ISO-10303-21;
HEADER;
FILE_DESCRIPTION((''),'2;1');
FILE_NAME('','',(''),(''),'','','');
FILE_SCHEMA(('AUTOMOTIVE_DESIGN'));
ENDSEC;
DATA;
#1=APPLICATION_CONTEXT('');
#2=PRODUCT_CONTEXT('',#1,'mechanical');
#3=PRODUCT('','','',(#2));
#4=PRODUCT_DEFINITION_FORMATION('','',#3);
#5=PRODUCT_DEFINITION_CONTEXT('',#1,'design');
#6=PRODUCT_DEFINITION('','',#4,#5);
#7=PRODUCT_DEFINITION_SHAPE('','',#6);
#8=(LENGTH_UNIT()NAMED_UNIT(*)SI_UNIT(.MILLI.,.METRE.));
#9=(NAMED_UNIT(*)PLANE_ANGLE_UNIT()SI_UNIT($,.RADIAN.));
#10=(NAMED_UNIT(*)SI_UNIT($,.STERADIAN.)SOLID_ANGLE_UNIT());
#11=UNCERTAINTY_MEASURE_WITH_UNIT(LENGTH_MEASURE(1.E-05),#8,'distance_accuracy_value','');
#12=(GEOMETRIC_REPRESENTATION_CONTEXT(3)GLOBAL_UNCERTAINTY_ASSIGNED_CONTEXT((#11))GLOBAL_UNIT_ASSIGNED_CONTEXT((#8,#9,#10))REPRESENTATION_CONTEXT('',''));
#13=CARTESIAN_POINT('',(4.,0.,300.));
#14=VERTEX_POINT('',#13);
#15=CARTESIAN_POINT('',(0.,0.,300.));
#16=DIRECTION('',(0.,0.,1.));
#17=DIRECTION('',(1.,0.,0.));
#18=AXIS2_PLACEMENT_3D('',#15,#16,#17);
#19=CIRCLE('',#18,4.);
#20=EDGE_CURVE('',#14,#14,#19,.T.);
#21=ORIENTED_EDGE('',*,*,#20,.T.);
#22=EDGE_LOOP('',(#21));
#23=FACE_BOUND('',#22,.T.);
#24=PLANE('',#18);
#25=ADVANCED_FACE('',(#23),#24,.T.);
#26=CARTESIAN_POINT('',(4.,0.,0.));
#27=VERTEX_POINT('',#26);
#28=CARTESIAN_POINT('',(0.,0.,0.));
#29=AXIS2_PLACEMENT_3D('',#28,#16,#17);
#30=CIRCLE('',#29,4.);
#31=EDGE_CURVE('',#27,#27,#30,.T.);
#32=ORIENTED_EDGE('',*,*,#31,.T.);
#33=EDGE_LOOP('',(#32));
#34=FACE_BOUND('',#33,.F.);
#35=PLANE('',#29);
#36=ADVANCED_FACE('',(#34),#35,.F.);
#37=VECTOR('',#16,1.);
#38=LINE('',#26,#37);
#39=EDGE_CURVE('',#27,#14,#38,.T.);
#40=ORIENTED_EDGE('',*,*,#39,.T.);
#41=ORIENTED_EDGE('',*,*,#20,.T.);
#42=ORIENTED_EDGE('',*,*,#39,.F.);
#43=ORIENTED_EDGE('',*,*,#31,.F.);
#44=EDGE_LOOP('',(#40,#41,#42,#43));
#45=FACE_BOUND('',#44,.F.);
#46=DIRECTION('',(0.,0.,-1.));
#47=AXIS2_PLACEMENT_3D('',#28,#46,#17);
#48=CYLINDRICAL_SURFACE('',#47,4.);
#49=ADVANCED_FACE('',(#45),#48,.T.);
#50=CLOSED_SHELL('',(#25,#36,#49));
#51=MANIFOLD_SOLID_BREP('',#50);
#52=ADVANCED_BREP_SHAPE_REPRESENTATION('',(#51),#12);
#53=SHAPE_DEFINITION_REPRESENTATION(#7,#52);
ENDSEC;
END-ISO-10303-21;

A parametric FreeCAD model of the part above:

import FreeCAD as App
import Part
import Sketcher

V = App.Vector
Q = App.Units.Quantity

doc = App.newDocument("Part")
params = doc.addObject("Spreadsheet::Sheet", "Params")
for row, (alias, value) in enumerate([
    ("sketch1_diameter", "8 mm"),
    ("pad1_length", "300 mm"),
], start=1):
    params.set(f"A{row}", alias)
    params.set(f"B{row}", "=" + value)
    params.setAlias(f"B{row}", alias)

body = doc.addObject("PartDesign::Body", "Body")

sketch1 = doc.addObject("Sketcher::SketchObject", "Sketch")
body.addObject(sketch1)
sketch1.AttachmentSupport = (doc.XY_Plane, [""])
sketch1.MapMode = "FlatFace"
sketch1.addGeometry(Part.Circle(V(0, 0, 0), V(0, 0, 1), 4), False)
sketch1.addConstraint(Sketcher.Constraint("Coincident", 0, 3, -1, 1))
sketch1.addConstraint(Sketcher.Constraint("Diameter", 0, Q("8 mm")))
sketch1.setExpression("Constraints[1]", "Params.sketch1_diameter")
pad1 = doc.addObject("PartDesign::Pad", "Pad")
body.addObject(pad1)
pad1.Profile = sketch1
pad1.setExpression("Length", "Params.pad1_length")

doc.recompute()
